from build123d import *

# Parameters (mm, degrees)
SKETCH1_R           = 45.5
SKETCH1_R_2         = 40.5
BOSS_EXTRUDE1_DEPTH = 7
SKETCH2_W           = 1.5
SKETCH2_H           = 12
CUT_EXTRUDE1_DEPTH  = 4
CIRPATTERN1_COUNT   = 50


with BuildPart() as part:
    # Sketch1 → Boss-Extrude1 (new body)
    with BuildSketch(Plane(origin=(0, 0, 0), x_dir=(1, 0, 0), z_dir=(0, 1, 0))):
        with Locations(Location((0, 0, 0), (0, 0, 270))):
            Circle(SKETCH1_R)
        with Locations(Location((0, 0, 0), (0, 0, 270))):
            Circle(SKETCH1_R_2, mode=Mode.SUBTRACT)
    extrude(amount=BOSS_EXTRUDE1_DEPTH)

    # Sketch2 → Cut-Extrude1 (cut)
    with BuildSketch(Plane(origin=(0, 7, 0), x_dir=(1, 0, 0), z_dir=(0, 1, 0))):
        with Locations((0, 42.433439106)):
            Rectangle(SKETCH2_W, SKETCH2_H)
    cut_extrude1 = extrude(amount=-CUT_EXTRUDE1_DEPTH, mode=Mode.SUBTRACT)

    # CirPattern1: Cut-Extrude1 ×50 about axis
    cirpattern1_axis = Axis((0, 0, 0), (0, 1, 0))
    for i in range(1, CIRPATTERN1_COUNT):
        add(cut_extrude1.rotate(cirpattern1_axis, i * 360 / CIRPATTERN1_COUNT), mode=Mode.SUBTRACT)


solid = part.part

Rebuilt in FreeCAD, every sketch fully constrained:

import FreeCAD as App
import Part
import Sketcher
from FreeCAD import Vector
Q = App.Units.Quantity

doc = App.newDocument("Part")
body = doc.addObject("PartDesign::Body", "Body")

sketch1 = doc.addObject("Sketcher::SketchObject", "Sketch")
body.addObject(sketch1)
sketch1.AttachmentSupport = (doc.XZ_Plane, [""])
sketch1.MapMode = "FlatFace"
sketch1.addGeometry(Part.Circle(Vector(0, 0, 0), Vector(0, 0, 1), 46), False)
sketch1.addGeometry(Part.Circle(Vector(0, 0, 0), Vector(0, 0, 1), 40), False)
sketch1.addConstraint(Sketcher.Constraint("Coincident", 0, 3, -1, 1))
sketch1.addConstraint(Sketcher.Constraint("Coincident", 1, 3, -1, 1))
sketch1.addConstraint(Sketcher.Constraint("Diameter", 0, Q("91 mm")))
sketch1.addConstraint(Sketcher.Constraint("Diameter", 1, Q("81 mm")))
pad1 = doc.addObject("PartDesign::Pad", "Pad")
body.addObject(pad1)
pad1.Profile = sketch1
pad1.Length = 7
pad1.Reversed = True

sketch2 = doc.addObject("Sketcher::SketchObject", "Sketch001")
body.addObject(sketch2)
sketch2.AttachmentSupport = (doc.XZ_Plane, [""])
sketch2.MapMode = "FlatFace"
sketch2.AttachmentOffset = App.Placement(Vector(0, 0, -7), App.Rotation())
sketch2.addGeometry(Part.LineSegment(Vector(-0.8, -48.4, 0), Vector(-0.8, -36.4, 0)), False)
sketch2.addGeometry(Part.LineSegment(Vector(-0.8, -36.4, 0), Vector(0.8, -36.4, 0)), False)
sketch2.addGeometry(Part.LineSegment(Vector(0.8, -36.4, 0), Vector(0.8, -48.4, 0)), False)
sketch2.addGeometry(Part.LineSegment(Vector(0.8, -48.4, 0), Vector(-0.8, -48.4, 0)), False)
sketch2.addConstraint(Sketcher.Constraint("Coincident", 0, 2, 1, 1))
sketch2.addConstraint(Sketcher.Constraint("Coincident", 1, 2, 2, 1))
sketch2.addConstraint(Sketcher.Constraint("Coincident", 2, 2, 3, 1))
sketch2.addConstraint(Sketcher.Constraint("Coincident", 3, 2, 0, 1))
sketch2.addConstraint(Sketcher.Constraint("Vertical", 0))
sketch2.addConstraint(Sketcher.Constraint("Horizontal", 1))
sketch2.addConstraint(Sketcher.Constraint("Vertical", 2))
sketch2.addConstraint(Sketcher.Constraint("Horizontal", 3))
sketch2.addConstraint(Sketcher.Constraint("DistanceY", 0, 1, 0, 2, Q("12 mm")))
sketch2.addConstraint(Sketcher.Constraint("DistanceX", 1, 1, 1, 2, Q("1.5 mm")))
sketch2.addConstraint(Sketcher.Constraint("DistanceX", 0, 2, -1, 1, Q("0.75 mm")))
sketch2.addConstraint(Sketcher.Constraint("DistanceY", 0, 2, -1, 1, Q("36.433439 mm")))
pocket1 = doc.addObject("PartDesign::Pocket", "Pocket")
body.addObject(pocket1)
pocket1.Profile = sketch2
pocket1.Length = 4
pocket1.Reversed = True
doc.recompute()

polarpattern = doc.addObject("PartDesign::PolarPattern", "PolarPattern")
body.addObject(polarpattern)
polarpattern.Originals = [pocket1]
polarpattern.Axis = (doc.Y_Axis, [""])
polarpattern.Angle = 360
polarpattern.Occurrences = 50
body.Tip = polarpattern

doc.recompute()
